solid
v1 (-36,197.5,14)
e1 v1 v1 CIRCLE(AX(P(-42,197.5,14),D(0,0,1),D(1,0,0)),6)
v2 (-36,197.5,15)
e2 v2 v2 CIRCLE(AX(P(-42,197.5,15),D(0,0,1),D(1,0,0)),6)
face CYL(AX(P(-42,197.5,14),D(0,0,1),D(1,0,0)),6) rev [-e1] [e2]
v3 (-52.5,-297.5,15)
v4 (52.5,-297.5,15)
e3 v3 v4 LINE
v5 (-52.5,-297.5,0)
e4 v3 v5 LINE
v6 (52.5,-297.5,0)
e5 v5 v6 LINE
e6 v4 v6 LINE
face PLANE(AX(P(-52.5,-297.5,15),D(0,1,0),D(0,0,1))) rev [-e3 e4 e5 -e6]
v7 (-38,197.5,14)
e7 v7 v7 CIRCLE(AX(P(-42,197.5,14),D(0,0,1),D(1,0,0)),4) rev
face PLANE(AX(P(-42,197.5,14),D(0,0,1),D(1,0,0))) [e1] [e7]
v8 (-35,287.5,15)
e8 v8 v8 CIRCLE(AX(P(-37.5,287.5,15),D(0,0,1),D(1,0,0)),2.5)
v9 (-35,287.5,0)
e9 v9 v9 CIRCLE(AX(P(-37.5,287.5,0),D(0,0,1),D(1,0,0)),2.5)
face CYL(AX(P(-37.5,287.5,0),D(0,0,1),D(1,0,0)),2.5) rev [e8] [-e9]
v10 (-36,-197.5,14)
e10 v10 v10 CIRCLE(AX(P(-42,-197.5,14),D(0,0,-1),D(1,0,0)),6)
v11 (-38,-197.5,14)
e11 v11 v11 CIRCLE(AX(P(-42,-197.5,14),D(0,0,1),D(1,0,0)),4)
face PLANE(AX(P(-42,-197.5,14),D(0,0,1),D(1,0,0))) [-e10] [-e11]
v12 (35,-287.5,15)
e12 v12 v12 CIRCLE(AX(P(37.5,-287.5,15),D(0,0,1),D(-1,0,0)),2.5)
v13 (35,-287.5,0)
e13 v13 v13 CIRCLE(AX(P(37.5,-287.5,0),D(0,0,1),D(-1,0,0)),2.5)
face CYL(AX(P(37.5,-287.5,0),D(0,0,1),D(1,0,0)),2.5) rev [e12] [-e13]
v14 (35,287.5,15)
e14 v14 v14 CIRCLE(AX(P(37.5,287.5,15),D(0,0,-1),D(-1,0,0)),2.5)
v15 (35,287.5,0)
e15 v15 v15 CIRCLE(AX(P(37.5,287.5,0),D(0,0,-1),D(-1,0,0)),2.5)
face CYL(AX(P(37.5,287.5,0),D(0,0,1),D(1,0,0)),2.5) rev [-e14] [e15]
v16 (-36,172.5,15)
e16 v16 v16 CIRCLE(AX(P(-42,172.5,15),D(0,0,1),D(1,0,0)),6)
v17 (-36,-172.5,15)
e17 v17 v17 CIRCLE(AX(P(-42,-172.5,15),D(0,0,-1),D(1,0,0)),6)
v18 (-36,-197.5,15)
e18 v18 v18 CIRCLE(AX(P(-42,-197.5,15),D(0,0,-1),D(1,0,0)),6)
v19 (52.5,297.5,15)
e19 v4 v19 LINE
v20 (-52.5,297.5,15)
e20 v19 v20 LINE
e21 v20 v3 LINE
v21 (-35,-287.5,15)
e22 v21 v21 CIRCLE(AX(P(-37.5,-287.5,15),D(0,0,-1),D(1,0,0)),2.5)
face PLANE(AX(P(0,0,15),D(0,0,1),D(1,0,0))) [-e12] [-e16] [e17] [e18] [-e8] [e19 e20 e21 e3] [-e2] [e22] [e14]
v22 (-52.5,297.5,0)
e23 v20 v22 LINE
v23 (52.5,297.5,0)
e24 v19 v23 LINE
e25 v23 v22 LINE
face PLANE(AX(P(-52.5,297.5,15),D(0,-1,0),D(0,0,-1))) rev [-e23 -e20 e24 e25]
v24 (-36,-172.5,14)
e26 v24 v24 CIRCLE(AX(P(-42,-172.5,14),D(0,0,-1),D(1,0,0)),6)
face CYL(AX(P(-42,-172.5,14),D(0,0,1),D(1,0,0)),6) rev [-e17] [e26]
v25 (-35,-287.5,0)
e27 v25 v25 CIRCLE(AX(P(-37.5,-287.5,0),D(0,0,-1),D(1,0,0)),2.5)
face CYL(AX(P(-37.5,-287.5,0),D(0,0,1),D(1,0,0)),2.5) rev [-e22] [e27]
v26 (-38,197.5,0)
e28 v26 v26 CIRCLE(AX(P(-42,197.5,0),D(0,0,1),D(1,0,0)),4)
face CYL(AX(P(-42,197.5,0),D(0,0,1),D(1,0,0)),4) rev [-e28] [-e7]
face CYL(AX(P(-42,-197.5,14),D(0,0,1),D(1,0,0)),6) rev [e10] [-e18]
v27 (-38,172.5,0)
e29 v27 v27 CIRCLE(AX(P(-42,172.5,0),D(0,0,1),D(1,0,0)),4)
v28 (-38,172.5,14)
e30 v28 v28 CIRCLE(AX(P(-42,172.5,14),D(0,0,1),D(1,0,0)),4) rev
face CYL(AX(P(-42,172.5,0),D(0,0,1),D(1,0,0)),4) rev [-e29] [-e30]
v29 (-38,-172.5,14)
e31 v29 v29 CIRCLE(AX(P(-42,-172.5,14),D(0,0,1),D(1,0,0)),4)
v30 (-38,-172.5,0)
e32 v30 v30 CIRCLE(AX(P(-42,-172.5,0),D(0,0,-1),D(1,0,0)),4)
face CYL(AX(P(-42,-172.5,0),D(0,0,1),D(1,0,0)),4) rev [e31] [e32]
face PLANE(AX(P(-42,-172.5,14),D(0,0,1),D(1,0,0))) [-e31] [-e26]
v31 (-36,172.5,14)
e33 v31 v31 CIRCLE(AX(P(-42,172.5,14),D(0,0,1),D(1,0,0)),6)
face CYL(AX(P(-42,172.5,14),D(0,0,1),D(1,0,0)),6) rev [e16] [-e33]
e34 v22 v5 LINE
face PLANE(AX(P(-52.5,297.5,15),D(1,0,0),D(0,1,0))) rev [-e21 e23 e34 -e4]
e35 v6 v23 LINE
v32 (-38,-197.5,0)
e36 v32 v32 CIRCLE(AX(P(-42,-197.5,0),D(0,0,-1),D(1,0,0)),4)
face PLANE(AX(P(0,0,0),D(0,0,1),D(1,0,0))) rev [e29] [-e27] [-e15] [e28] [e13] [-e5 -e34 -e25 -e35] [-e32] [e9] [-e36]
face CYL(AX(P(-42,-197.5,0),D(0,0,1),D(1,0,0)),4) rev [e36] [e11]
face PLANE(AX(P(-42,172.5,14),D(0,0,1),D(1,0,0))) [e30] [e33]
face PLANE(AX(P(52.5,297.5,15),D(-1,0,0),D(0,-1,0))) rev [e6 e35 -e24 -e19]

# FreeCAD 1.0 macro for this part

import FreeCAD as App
import Part
import Sketcher
Q = App.Units.Quantity


def add_polygon(sketch, points):
    """Adds a closed chain of lines whose ends are joined by coincident constraints."""
    first, n = sketch.GeometryCount, len(points)
    for a, b in zip(points, points[1:] + points[:1]):
        sketch.addGeometry(Part.LineSegment(App.Vector(*a, 0), App.Vector(*b, 0)), False)
    for i in range(n):
        sketch.addConstraint(Sketcher.Constraint("Coincident", first + i, 2, first + (i + 1) % n, 1))

doc = App.newDocument("Part")
params = doc.addObject("Spreadsheet::Sheet", "Params")
for row, (alias, value) in enumerate([
    ("sketch1_width", "105 mm"),
    ("sketch1_height", "595 mm"),
    ("pad1_length", "15 mm"),
    ("sketch2_diameter", "8 mm"),
    ("sketch3_diameter", "5 mm"),
    ("sketch4_diameter", "5 mm"),
    ("sketch5_diameter", "12 mm"),
    ("pocket4_length", "1 mm"),
], start=1):
    params.set(f"A{row}", alias)
    params.set(f"B{row}", "=" + value)
    params.setAlias(f"B{row}", alias)

body = doc.addObject("PartDesign::Body", "Body")

# Sketch on XY plane
sketch1 = doc.addObject("Sketcher::SketchObject", "Sketch")
body.addObject(sketch1)
sketch1.AttachmentSupport = (doc.XY_Plane, [""])
sketch1.MapMode = "FlatFace"
add_polygon(sketch1, [(-52, 298), (-52, -298), (52, -298), (52, 298)])  # lines 0-3
sketch1.addConstraint([
    Sketcher.Constraint("Vertical", 0),
    Sketcher.Constraint("Horizontal", 1),
    Sketcher.Constraint("Vertical", 2),
    Sketcher.Constraint("Horizontal", 3),
    Sketcher.Constraint("Symmetric", 0, 2, 2, 2, -1, 1),
    Sketcher.Constraint("DistanceX", 1, 1, 1, 2, Q("105 mm")),
    Sketcher.Constraint("DistanceY", 0, 2, 0, 1, Q("595 mm")),
])
sketch1.setExpression("Constraints[9]", "Params.sketch1_width")
sketch1.setExpression("Constraints[10]", "Params.sketch1_height")
pad1 = doc.addObject("PartDesign::Pad", "Pad")
body.addObject(pad1)
pad1.Profile = sketch1
pad1.setExpression("Length", "Params.pad1_length")

# Sketch on XY plane
sketch2 = doc.addObject("Sketcher::SketchObject", "Sketch001")
body.addObject(sketch2)
sketch2.AttachmentSupport = (doc.XY_Plane, [""])
sketch2.MapMode = "FlatFace"
sketch2.AttachmentOffset = App.Placement(App.Vector(0, 0, 15), App.Rotation())
sketch2.addGeometry([
    Part.Circle(App.Vector(-42, 197.5, 0), App.Vector(0, 0, 1), 4),
    Part.Circle(App.Vector(-42, 172.5, 0), App.Vector(0, 0, 1), 4),
], False)
sketch2.addConstraint([
    Sketcher.Constraint("Equal", 0, 1),
    Sketcher.Constraint("Vertical", 0, 3, 1, 3),
    Sketcher.Constraint("Diameter", 0, Q("8 mm")),
    Sketcher.Constraint("DistanceX", 0, 3, -1, 1, Q("42 mm")),
    Sketcher.Constraint("DistanceY", 1, 3, 0, 3, Q("25 mm")),
    Sketcher.Constraint("DistanceY", -1, 1, 0, 3, Q("197.5 mm")),
])
sketch2.setExpression("Constraints[2]", "Params.sketch2_diameter")
pocket1 = doc.addObject("PartDesign::Pocket", "Pocket")
body.addObject(pocket1)
pocket1.Profile = sketch2
pocket1.Type = "ThroughAll"

# Sketch on XY plane
sketch3 = doc.addObject("Sketcher::SketchObject", "Sketch002")
body.addObject(sketch3)
sketch3.AttachmentSupport = (doc.XY_Plane, [""])
sketch3.MapMode = "FlatFace"
sketch3.AttachmentOffset = App.Placement(App.Vector(0, 0, 15), App.Rotation())
sketch3.addGeometry(Part.Circle(App.Vector(-37.5, 287.5, 0), App.Vector(0, 0, 1), 2.5), False)
sketch3.addConstraint([
    Sketcher.Constraint("Diameter", 0, Q("5 mm")),
    Sketcher.Constraint("DistanceX", 0, 3, -1, 1, Q("37.5 mm")),
    Sketcher.Constraint("DistanceY", -1, 1, 0, 3, Q("287.5 mm")),
])
sketch3.setExpression("Constraints[0]", "Params.sketch3_diameter")
pocket2 = doc.addObject("PartDesign::Pocket", "Pocket001")
body.addObject(pocket2)
pocket2.Profile = sketch3
pocket2.Type = "ThroughAll"
doc.recompute()

mirrored = doc.addObject("PartDesign::Mirrored", "Mirrored")
body.addObject(mirrored)
mirrored.Originals = [pocket2]
mirrored.MirrorPlane = (doc.XZ_Plane, [""])
body.Tip = mirrored
doc.recompute()

mirrored2 = doc.addObject("PartDesign::Mirrored", "Mirrored001")
body.addObject(mirrored2)
mirrored2.Originals = [pocket1]
mirrored2.MirrorPlane = (doc.XZ_Plane, [""])
body.Tip = mirrored2
doc.recompute()

mirrored3 = doc.addObject("PartDesign::Mirrored", "Mirrored002")
body.addObject(mirrored3)
mirrored3.Originals = [pocket2]
mirrored3.MirrorPlane = (doc.YZ_Plane, [""])
body.Tip = mirrored3

# Sketch on XY plane
sketch4 = doc.addObject("Sketcher::SketchObject", "Sketch003")
body.addObject(sketch4)
sketch4.AttachmentSupport = (doc.XY_Plane, [""])
sketch4.MapMode = "FlatFace"
sketch4.AttachmentOffset = App.Placement(App.Vector(0, 0, 15), App.Rotation())
sketch4.addGeometry(Part.Circle(App.Vector(37.5, -287.5, 0), App.Vector(0, 0, 1), 2.5), False)
sketch4.addConstraint([
    Sketcher.Constraint("Diameter", 0, Q("5 mm")),
    Sketcher.Constraint("DistanceX", -1, 1, 0, 3, Q("37.5 mm")),
    Sketcher.Constraint("DistanceY", 0, 3, -1, 1, Q("287.5 mm")),
])
sketch4.setExpression("Constraints[0]", "Params.sketch4_diameter")
pocket3 = doc.addObject("PartDesign::Pocket", "Pocket002")
body.addObject(pocket3)
pocket3.Profile = sketch4
pocket3.Type = "ThroughAll"

# Sketch on XY plane
sketch5 = doc.addObject("Sketcher::SketchObject", "Sketch004")
body.addObject(sketch5)
sketch5.AttachmentSupport = (doc.XY_Plane, [""])
sketch5.MapMode = "FlatFace"
sketch5.AttachmentOffset = App.Placement(App.Vector(0, 0, 15), App.Rotation())
sketch5.addGeometry([
    Part.Circle(App.Vector(-42, 198, 0), App.Vector(0, 0, 1), 6),
    Part.Circle(App.Vector(-42, 172, 0), App.Vector(0, 0, 1), 6),
], False)
sketch5.addConstraint([
    Sketcher.Constraint("Equal", 0, 1),
    Sketcher.Constraint("Vertical", 0, 3, 1, 3),
    Sketcher.Constraint("Diameter", 0, Q("12 mm")),
    Sketcher.Constraint("DistanceX", 0, 3, -1, 1, Q("42 mm")),
    Sketcher.Constraint("DistanceY", 1, 3, 0, 3, Q("25 mm")),
    Sketcher.Constraint("DistanceY", -1, 1, 0, 3, Q("197.5 mm")),
])
sketch5.setExpression("Constraints[2]", "Params.sketch5_diameter")
pocket4 = doc.addObject("PartDesign::Pocket", "Pocket003")
body.addObject(pocket4)
pocket4.Profile = sketch5
pocket4.setExpression("Length", "Params.pocket4_length")
doc.recompute()

mirrored4 = doc.addObject("PartDesign::Mirrored", "Mirrored003")
body.addObject(mirrored4)
mirrored4.Originals = [pocket4]
mirrored4.MirrorPlane = (doc.XZ_Plane, [""])
body.Tip = mirrored4

doc.recompute()
